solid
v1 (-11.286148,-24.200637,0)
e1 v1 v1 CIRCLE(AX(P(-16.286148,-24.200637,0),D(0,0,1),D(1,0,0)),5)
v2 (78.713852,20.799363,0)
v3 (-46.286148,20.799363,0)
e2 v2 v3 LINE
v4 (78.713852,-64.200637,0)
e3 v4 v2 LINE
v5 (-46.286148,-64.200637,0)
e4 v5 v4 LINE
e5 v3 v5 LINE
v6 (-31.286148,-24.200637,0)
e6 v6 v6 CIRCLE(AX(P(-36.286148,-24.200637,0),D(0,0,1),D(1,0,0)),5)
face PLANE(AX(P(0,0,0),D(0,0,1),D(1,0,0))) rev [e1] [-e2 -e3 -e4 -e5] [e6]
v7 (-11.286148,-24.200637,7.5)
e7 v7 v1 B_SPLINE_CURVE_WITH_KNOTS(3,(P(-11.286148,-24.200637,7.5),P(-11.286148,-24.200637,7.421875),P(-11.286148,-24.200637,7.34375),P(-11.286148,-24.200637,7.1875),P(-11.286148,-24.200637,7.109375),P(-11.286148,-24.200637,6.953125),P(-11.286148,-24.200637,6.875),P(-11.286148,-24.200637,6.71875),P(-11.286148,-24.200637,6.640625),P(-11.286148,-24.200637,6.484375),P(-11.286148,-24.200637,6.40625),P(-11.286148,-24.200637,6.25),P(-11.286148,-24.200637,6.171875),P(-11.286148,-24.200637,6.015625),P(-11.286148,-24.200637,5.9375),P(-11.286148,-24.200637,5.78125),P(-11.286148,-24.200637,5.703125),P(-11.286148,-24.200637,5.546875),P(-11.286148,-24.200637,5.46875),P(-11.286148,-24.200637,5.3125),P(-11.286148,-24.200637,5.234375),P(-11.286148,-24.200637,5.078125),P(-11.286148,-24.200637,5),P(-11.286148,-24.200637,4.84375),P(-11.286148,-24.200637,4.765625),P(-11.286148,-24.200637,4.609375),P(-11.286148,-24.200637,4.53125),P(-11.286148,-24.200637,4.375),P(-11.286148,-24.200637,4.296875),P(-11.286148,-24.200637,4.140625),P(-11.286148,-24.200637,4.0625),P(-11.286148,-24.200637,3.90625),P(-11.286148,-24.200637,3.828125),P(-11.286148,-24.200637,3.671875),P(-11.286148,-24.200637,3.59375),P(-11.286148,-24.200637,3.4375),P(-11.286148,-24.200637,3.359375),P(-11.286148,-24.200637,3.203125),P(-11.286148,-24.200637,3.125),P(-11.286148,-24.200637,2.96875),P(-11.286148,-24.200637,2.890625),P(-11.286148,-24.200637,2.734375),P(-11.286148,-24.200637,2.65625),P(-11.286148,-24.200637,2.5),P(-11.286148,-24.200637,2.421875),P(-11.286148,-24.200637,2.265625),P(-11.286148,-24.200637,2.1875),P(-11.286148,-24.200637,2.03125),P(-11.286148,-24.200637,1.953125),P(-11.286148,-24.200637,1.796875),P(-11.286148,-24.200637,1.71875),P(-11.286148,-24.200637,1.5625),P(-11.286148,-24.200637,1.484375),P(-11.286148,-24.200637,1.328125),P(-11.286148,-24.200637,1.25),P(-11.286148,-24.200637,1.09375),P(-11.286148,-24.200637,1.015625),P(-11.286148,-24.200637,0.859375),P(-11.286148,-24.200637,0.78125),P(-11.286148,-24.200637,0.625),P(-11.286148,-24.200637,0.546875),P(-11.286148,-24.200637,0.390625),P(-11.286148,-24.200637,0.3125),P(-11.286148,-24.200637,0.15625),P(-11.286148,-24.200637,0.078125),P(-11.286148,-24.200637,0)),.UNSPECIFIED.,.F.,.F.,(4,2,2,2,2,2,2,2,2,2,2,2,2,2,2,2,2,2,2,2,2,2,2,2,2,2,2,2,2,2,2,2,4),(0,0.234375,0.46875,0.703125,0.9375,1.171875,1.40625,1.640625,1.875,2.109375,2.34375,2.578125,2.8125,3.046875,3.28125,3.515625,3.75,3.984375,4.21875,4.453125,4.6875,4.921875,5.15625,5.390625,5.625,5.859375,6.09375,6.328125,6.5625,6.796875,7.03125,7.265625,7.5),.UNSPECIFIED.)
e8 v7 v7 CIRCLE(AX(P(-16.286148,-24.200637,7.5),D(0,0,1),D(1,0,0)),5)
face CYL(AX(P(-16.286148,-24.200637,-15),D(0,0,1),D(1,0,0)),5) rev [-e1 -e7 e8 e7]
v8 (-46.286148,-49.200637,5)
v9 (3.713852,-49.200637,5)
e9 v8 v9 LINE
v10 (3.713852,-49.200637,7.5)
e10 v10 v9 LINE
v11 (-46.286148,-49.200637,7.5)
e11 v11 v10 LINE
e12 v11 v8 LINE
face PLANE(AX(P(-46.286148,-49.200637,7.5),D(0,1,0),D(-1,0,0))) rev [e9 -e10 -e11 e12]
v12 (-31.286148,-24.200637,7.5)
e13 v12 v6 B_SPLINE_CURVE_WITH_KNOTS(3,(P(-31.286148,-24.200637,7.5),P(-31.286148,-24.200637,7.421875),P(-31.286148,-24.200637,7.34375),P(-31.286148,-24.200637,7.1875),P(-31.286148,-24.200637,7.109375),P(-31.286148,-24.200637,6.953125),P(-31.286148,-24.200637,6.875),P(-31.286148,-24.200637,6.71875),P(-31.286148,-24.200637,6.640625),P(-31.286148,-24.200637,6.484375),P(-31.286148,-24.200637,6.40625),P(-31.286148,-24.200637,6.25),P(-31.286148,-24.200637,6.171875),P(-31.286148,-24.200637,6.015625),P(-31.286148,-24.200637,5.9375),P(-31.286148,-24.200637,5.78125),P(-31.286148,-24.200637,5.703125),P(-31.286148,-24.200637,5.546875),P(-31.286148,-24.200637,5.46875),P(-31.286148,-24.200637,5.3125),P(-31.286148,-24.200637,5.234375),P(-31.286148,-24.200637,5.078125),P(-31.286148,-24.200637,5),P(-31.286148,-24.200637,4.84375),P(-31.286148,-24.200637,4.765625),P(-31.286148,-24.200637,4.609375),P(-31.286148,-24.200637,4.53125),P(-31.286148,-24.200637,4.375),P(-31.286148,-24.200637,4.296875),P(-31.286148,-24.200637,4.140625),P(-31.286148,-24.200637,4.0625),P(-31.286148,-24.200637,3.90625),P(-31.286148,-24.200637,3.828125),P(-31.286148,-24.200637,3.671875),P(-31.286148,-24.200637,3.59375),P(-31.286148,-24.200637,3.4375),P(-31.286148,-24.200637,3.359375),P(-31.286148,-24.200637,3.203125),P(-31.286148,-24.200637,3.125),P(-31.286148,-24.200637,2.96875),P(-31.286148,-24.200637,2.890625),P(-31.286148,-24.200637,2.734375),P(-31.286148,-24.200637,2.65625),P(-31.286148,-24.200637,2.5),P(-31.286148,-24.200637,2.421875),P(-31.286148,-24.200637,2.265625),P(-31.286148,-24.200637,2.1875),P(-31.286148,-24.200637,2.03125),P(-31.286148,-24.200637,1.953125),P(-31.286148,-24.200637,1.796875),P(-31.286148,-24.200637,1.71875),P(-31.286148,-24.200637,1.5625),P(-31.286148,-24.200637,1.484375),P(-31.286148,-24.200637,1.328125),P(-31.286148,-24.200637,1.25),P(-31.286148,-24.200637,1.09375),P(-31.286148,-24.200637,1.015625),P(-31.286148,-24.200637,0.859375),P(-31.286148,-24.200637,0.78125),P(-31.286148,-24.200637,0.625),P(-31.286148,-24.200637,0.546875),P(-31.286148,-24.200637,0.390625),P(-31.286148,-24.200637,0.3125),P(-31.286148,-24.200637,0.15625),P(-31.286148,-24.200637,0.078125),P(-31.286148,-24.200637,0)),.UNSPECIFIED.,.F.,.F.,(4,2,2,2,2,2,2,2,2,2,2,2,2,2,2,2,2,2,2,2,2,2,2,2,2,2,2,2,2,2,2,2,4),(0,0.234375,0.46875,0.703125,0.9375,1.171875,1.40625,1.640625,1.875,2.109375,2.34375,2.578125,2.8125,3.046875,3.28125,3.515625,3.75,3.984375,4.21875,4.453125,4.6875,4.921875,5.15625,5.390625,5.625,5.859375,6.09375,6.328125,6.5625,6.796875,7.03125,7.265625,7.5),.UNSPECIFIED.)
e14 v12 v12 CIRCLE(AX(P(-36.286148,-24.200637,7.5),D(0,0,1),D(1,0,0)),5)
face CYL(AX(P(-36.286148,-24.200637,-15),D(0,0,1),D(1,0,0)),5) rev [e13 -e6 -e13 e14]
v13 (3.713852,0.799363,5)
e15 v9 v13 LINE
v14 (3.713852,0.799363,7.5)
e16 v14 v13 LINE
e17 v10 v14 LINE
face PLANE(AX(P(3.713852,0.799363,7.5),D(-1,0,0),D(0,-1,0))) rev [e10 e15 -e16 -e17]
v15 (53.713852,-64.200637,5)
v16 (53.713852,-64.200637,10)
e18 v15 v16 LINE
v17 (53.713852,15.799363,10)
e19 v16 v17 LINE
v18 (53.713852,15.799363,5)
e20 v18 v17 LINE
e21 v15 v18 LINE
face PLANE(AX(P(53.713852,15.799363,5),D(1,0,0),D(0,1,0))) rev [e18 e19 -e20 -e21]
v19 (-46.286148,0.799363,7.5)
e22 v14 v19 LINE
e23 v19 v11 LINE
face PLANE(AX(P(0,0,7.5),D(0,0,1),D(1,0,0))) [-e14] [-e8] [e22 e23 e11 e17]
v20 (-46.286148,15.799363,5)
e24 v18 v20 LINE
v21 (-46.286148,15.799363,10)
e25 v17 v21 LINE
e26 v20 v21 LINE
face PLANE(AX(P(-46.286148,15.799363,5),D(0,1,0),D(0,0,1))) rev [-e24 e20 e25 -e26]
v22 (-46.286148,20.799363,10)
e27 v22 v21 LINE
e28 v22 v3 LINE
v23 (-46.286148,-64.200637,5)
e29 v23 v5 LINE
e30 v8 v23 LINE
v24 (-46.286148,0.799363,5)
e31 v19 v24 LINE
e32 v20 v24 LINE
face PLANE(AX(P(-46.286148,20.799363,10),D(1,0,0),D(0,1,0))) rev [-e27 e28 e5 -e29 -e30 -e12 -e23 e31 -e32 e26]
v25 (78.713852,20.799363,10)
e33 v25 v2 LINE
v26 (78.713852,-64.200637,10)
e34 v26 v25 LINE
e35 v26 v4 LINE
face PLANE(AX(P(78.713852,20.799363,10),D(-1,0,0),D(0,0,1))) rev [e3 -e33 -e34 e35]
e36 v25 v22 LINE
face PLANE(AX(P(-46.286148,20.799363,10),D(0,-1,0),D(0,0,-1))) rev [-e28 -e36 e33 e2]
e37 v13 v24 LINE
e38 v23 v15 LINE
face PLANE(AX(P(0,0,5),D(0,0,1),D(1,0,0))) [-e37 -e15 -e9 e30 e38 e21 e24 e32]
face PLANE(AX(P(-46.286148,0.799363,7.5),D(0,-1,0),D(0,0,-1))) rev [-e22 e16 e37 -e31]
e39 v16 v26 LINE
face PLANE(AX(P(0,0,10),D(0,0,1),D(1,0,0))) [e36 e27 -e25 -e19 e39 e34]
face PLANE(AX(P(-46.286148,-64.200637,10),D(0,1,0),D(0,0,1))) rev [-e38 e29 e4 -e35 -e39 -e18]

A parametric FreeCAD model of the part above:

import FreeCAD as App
import Part
import Sketcher
from FreeCAD import Vector
Q = App.Units.Quantity

doc = App.newDocument("Part")
body = doc.addObject("PartDesign::Body", "Body")

# Sketch on XY plane
sketch1 = body.newObject("Sketcher::SketchObject", "Sketch")
sketch1.AttachmentSupport = (doc.getObject("XY_Plane"), [""])
sketch1.MapMode = "FlatFace"
sketch1.addGeometry(Part.LineSegment(Vector(-46.286148, 20.799363, 0), Vector(-46.286148, -64.200637, 0)), False)
sketch1.addGeometry(Part.LineSegment(Vector(-46.286148, -64.200637, 0), Vector(78.713852, -64.200637, 0)), False)
sketch1.addGeometry(Part.LineSegment(Vector(78.713852, -64.200637, 0), Vector(78.713852, 20.799363, 0)), False)
sketch1.addGeometry(Part.LineSegment(Vector(78.713852, 20.799363, 0), Vector(-46.286148, 20.799363, 0)), False)
sketch1.addConstraint(Sketcher.Constraint("Coincident", 0, 2, 1, 1))
sketch1.addConstraint(Sketcher.Constraint("Coincident", 1, 2, 2, 1))
sketch1.addConstraint(Sketcher.Constraint("Coincident", 2, 2, 3, 1))
sketch1.addConstraint(Sketcher.Constraint("Coincident", 3, 2, 0, 1))
sketch1.addConstraint(Sketcher.Constraint("Vertical", 0))
sketch1.addConstraint(Sketcher.Constraint("Horizontal", 1))
sketch1.addConstraint(Sketcher.Constraint("Vertical", 2))
sketch1.addConstraint(Sketcher.Constraint("Horizontal", 3))
sketch1.addConstraint(Sketcher.Constraint("DistanceX", 1, 1, 1, 2, Q("125 mm")))
sketch1.addConstraint(Sketcher.Constraint("DistanceY", 0, 2, 0, 1, Q("85 mm")))
sketch1.addConstraint(Sketcher.Constraint("DistanceX", 0, 2, -1, 1, Q("46.286148 mm")))
sketch1.addConstraint(Sketcher.Constraint("DistanceY", 0, 2, -1, 1, Q("64.200637 mm")))
pad1 = body.newObject("PartDesign::Pad", "Pad")
pad1.Profile = sketch1
pad1.Length = 10

# Sketch on XY plane
sketch2 = body.newObject("Sketcher::SketchObject", "Sketch001")
sketch2.AttachmentSupport = (doc.getObject("XY_Plane"), [""])
sketch2.MapMode = "FlatFace"
sketch2.AttachmentOffset = App.Placement(Vector(0, 0, 10), App.Rotation())
sketch2.addGeometry(Part.LineSegment(Vector(-46.286148, 15.799363, 0), Vector(-46.286148, -64.200637, 0)), False)
sketch2.addGeometry(Part.LineSegment(Vector(-46.286148, -64.200637, 0), Vector(53.713852, -64.200637, 0)), False)
sketch2.addGeometry(Part.LineSegment(Vector(53.713852, -64.200637, 0), Vector(53.713852, 15.799363, 0)), False)
sketch2.addGeometry(Part.LineSegment(Vector(53.713852, 15.799363, 0), Vector(-46.286148, 15.799363, 0)), False)
sketch2.addConstraint(Sketcher.Constraint("Coincident", 0, 2, 1, 1))
sketch2.addConstraint(Sketcher.Constraint("Coincident", 1, 2, 2, 1))
sketch2.addConstraint(Sketcher.Constraint("Coincident", 2, 2, 3, 1))
sketch2.addConstraint(Sketcher.Constraint("Coincident", 3, 2, 0, 1))
sketch2.addConstraint(Sketcher.Constraint("Vertical", 0))
sketch2.addConstraint(Sketcher.Constraint("Horizontal", 1))
sketch2.addConstraint(Sketcher.Constraint("Vertical", 2))
sketch2.addConstraint(Sketcher.Constraint("Horizontal", 3))
sketch2.addConstraint(Sketcher.Constraint("DistanceX", 1, 1, 1, 2, Q("100 mm")))
sketch2.addConstraint(Sketcher.Constraint("DistanceY", 0, 2, 0, 1, Q("80 mm")))
sketch2.addConstraint(Sketcher.Constraint("DistanceX", 0, 2, -1, 1, Q("46.286148 mm")))
sketch2.addConstraint(Sketcher.Constraint("DistanceY", 0, 2, -1, 1, Q("64.200637 mm")))
pocket1 = body.newObject("PartDesign::Pocket", "Pocket")
pocket1.Profile = sketch2
pocket1.Length = 5

# Sketch on XY plane
sketch3 = body.newObject("Sketcher::SketchObject", "Sketch002")
sketch3.AttachmentSupport = (doc.getObject("XY_Plane"), [""])
sketch3.MapMode = "FlatFace"
sketch3.AttachmentOffset = App.Placement(Vector(0, 0, 5), App.Rotation())
sketch3.addGeometry(Part.LineSegment(Vector(-46.286148, 0.799363, 0), Vector(-46.286148, -49.200637, 0)), False)
sketch3.addGeometry(Part.LineSegment(Vector(-46.286148, -49.200637, 0), Vector(3.713852, -49.200637, 0)), False)
sketch3.addGeometry(Part.LineSegment(Vector(3.713852, -49.200637, 0), Vector(3.713852, 0.799363, 0)), False)
sketch3.addGeometry(Part.LineSegment(Vector(3.713852, 0.799363, 0), Vector(-46.286148, 0.799363, 0)), False)
sketch3.addConstraint(Sketcher.Constraint("Coincident", 0, 2, 1, 1))
sketch3.addConstraint(Sketcher.Constraint("Coincident", 1, 2, 2, 1))
sketch3.addConstraint(Sketcher.Constraint("Coincident", 2, 2, 3, 1))
sketch3.addConstraint(Sketcher.Constraint("Coincident", 3, 2, 0, 1))
sketch3.addConstraint(Sketcher.Constraint("Vertical", 0))
sketch3.addConstraint(Sketcher.Constraint("Horizontal", 1))
sketch3.addConstraint(Sketcher.Constraint("Vertical", 2))
sketch3.addConstraint(Sketcher.Constraint("Horizontal", 3))
sketch3.addConstraint(Sketcher.Constraint("Equal", 3, 0))
sketch3.addConstraint(Sketcher.Constraint("DistanceX", 1, 1, 1, 2, Q("50 mm")))
sketch3.addConstraint(Sketcher.Constraint("DistanceX", 0, 2, -1, 1, Q("46.286148 mm")))
sketch3.addConstraint(Sketcher.Constraint("DistanceY", 0, 2, -1, 1, Q("49.200637 mm")))
pad2 = body.newObject("PartDesign::Pad", "Pad001")
pad2.Profile = sketch3
pad2.Length = 2.5

# Sketch on XY plane
sketch4 = body.newObject("Sketcher::SketchObject", "Sketch003")
sketch4.AttachmentSupport = (doc.getObject("XY_Plane"), [""])
sketch4.MapMode = "FlatFace"
sketch4.AttachmentOffset = App.Placement(Vector(0, 0, 7.5), App.Rotation())
sketch4.addGeometry(Part.Circle(Vector(-36.286148, -24.200637, 0), Vector(0, 0, 1), 5), False)
sketch4.addGeometry(Part.Circle(Vector(-16.286148, -24.200637, 0), Vector(0, 0, 1), 5), False)
sketch4.addConstraint(Sketcher.Constraint("Equal", 0, 1))
sketch4.addConstraint(Sketcher.Constraint("Horizontal", 0, 3, 1, 3))
sketch4.addConstraint(Sketcher.Constraint("Diameter", 0, Q("10 mm")))
sketch4.addConstraint(Sketcher.Constraint("DistanceX", 0, 3, 1, 3, Q("20 mm")))
sketch4.addConstraint(Sketcher.Constraint("DistanceX", 0, 3, -1, 1, Q("36.286148 mm")))
sketch4.addConstraint(Sketcher.Constraint("DistanceY", 0, 3, -1, 1, Q("24.200637 mm")))
pocket2 = body.newObject("PartDesign::Pocket", "Pocket001")
pocket2.Profile = sketch4
pocket2.Length = 22.5

doc.recompute()
